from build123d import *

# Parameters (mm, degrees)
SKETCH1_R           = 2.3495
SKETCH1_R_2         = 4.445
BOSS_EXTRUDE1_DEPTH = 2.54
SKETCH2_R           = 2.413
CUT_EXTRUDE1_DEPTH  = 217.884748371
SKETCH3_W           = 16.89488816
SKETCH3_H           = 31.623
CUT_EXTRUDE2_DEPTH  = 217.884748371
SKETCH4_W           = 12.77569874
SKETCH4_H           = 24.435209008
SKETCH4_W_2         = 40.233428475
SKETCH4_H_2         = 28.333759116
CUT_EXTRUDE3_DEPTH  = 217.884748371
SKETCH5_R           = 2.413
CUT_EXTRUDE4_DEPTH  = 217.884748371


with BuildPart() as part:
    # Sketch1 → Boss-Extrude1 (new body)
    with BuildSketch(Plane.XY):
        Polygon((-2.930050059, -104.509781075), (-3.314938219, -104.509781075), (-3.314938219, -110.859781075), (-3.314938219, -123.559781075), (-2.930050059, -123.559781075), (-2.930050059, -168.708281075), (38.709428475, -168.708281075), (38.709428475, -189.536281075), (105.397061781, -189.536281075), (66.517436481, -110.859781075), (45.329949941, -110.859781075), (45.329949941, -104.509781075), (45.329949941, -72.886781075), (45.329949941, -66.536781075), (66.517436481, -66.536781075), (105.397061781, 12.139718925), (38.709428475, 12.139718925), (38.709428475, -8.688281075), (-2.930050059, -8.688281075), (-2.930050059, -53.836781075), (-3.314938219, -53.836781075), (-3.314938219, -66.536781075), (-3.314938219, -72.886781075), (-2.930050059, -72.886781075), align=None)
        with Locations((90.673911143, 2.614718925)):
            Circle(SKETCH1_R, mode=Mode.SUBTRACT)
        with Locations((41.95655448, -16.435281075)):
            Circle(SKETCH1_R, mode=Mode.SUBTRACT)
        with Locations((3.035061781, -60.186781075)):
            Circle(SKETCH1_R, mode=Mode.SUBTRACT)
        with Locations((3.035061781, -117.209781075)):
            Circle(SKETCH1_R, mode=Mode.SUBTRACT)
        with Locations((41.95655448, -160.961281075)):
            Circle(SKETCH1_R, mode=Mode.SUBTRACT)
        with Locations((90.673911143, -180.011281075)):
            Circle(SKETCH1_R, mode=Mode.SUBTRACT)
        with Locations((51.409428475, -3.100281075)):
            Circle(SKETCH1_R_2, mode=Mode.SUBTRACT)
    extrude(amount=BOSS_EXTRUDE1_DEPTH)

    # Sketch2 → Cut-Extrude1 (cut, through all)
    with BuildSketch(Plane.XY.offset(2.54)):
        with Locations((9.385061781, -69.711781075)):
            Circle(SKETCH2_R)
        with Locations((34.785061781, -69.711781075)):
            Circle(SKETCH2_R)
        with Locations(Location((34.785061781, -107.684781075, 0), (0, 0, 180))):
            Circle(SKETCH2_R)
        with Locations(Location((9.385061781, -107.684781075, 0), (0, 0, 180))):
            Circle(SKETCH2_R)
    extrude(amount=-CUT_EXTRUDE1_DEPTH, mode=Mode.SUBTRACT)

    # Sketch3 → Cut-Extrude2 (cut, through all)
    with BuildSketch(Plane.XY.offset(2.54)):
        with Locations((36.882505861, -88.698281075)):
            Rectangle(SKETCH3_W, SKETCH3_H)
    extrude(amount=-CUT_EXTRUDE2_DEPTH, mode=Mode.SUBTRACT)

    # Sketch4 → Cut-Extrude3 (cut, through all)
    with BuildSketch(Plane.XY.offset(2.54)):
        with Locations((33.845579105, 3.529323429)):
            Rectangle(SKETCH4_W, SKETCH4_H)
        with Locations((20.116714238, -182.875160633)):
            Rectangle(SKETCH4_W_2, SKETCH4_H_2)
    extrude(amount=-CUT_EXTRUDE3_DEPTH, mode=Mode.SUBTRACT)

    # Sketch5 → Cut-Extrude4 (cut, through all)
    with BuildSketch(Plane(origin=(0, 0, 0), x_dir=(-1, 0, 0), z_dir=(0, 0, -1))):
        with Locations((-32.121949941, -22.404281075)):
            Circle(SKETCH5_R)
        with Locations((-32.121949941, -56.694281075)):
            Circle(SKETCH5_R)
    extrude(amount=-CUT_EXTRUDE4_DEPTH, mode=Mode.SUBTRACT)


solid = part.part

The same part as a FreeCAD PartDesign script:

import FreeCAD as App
import Part
import Sketcher

V = App.Vector
Q = App.Units.Quantity


def add_polygon(sketch, points):
    """Adds a closed chain of lines whose ends are joined by coincident constraints."""
    first, n = sketch.GeometryCount, len(points)
    for a, b in zip(points, points[1:] + points[:1]):
        sketch.addGeometry(Part.LineSegment(App.Vector(*a, 0), App.Vector(*b, 0)), False)
    for i in range(n):
        sketch.addConstraint(Sketcher.Constraint("Coincident", first + i, 2, first + (i + 1) % n, 1))

doc = App.newDocument("Part")
params = doc.addObject("Spreadsheet::Sheet", "Params")
for row, (alias, value) in enumerate([
    ("sketch1_diameter", "0.35 in"),
    ("sketch1_diameter2", "0.185 in"),
    ("sketch1_height", "0.75 in"),
    ("sketch1_height2", "0.82 in"),
    ("sketch1_height3", "1.745 in"),
    ("pad1_length", "0.1 in"),
    ("sketch2_diameter", "0.19 in"),
    ("sketch3_height", "1.245 in"),
    ("sketch5_diameter", "0.19 in"),
], start=1):
    params.set(f"A{row}", alias)
    params.set(f"B{row}", "=" + value)
    params.setAlias(f"B{row}", alias)

body = doc.addObject("PartDesign::Body", "Body")

# Sketch on XY plane
sketch1 = body.newObject("Sketcher::SketchObject", "Sketch")
sketch1.AttachmentSupport = (doc.getObject("XY_Plane"), [""])
sketch1.MapMode = "FlatFace"
add_polygon(sketch1, [(-2.93005, -104.509781), (-3.314938, -104.509781), (-3.314938, -123.559781), (-2.93005, -123.559781), (-2.93005, -168.708281), (38.709428, -168.708281), (38.709428, -189.536281), (105.397062, -189.536281), (66.517436, -110.859781), (45.32995, -110.859781), (45.32995, -66.536781), (66.517436, -66.536781), (105.397062, 12.139719), (38.709428, 12.139719), (38.709428, -8.688281), (-2.93005, -8.688281), (-2.93005, -53.836781), (-3.314938, -53.836781), (-3.314938, -72.886781), (-2.93005, -72.886781)])  # lines 0-19
sketch1.addGeometry(Part.Circle(V(41.956554, -160.961281, 0), V(0, 0, 1), 2.3495), False)  # 20
sketch1.addGeometry(Part.Circle(V(3.035062, -117.209781, 0), V(0, 0, 1), 2.3495), False)  # 21
sketch1.addGeometry(Part.Circle(V(90.673911, -180.011281, 0), V(0, 0, 1), 2.3495), False)  # 22
sketch1.addGeometry(Part.Circle(V(3.035062, -60.186781, 0), V(0, 0, 1), 2.3495), False)  # 23
sketch1.addGeometry(Part.Circle(V(41.956554, -16.435281, 0), V(0, 0, 1), 2.3495), False)  # 24
sketch1.addGeometry(Part.Circle(V(51.409428, -3.100281, 0), V(0, 0, 1), 4.445), False)  # 25
sketch1.addGeometry(Part.Circle(V(90.673911, 2.614719, 0), V(0, 0, 1), 2.3495), False)  # 26
sketch1.addConstraint([
    Sketcher.Constraint("Horizontal", 0),
    Sketcher.Constraint("Vertical", 1),
    Sketcher.Constraint("Horizontal", 2),
    Sketcher.Constraint("Vertical", 3),
    Sketcher.Constraint("Horizontal", 4),
    Sketcher.Constraint("Vertical", 5),
    Sketcher.Constraint("Horizontal", 6),
    Sketcher.Constraint("Horizontal", 8),
    Sketcher.Constraint("Vertical", 9),
    Sketcher.Constraint("Horizontal", 10),
    Sketcher.Constraint("Horizontal", 12),
    Sketcher.Constraint("Vertical", 13),
    Sketcher.Constraint("Horizontal", 14),
    Sketcher.Constraint("Vertical", 15),
    Sketcher.Constraint("Horizontal", 16),
    Sketcher.Constraint("Vertical", 17),
    Sketcher.Constraint("Horizontal", 18),
    Sketcher.Constraint("Vertical", 19),
    Sketcher.Constraint("Equal", 20, 21),
    Sketcher.Constraint("Equal", 21, 22),
    Sketcher.Constraint("Equal", 22, 23),
    Sketcher.Constraint("Equal", 23, 24),
    Sketcher.Constraint("Equal", 24, 26),
    Sketcher.Constraint("Vertical", 21, 3, 23, 3),
    Sketcher.Constraint("Vertical", 20, 3, 24, 3),
    Sketcher.Constraint("Vertical", 22, 3, 26, 3),
    Sketcher.Constraint("Vertical", 7, 2, 10, 2),
    Sketcher.Constraint("Vertical", 6, 2, 11, 2),
    Sketcher.Constraint("Vertical", 5, 2, 12, 2),
    Sketcher.Constraint("Vertical", 3, 2, 14, 2),
    Sketcher.Constraint("Vertical", 1, 2, 16, 2),
    Sketcher.Constraint("Vertical", 15, 2, 18, 2),
    Sketcher.Constraint("Equal", 5, 13),
    Sketcher.Constraint("Equal", 3, 15),
    Sketcher.Constraint("Equal", 1, 17),
    Sketcher.Constraint("Equal", 7, 11),
    Sketcher.Constraint("Diameter", 25, Q("0.35 in")),
    Sketcher.Constraint("Diameter", 20, Q("0.185 in")),
    Sketcher.Constraint("DistanceY", 1, 2, 1, 1, Q("0.75 in")),
    Sketcher.Constraint("DistanceY", 5, 2, 5, 1, Q("0.82 in")),
    Sketcher.Constraint("DistanceY", 21, 3, 0, 2, Q("0.5 in")),
    Sketcher.Constraint("DistanceY", 2, 2, 7, 2, Q("0.5 in")),
    Sketcher.Constraint("DistanceX", 2, 2, 8, 2, Q("1.9 in")),
    Sketcher.Constraint("DistanceY", 25, 3, 11, 2, Q("0.6 in")),
    Sketcher.Constraint("DistanceX", 12, 2, 25, 3, Q("0.5 in")),
    Sketcher.Constraint("DistanceY", 17, 2, 23, 3, Q("0.5 in")),
    Sketcher.Constraint("DistanceY", 9, 1, 9, 2, Q("1.745 in")),
    Sketcher.Constraint("DistanceY", 22, 3, 20, 3, Q("0.75 in")),
    Sketcher.Constraint("DistanceY", 20, 3, 24, 3, Q("5.69 in")),
    Sketcher.Constraint("DistanceY", 24, 3, 26, 3, Q("0.75 in")),
    Sketcher.Constraint("DistanceX", 0, 2, 21, 3, Q("0.25 in")),
    Sketcher.Constraint("DistanceY", 3, 2, 3, 1, Q("1.7775 in")),
    Sketcher.Constraint("DistanceY", 24, 3, 25, 3, Q("0.525 in")),
    Sketcher.Constraint("DistanceX", 0, 2, 0, 1, Q("0.384888 mm")),
    Sketcher.Constraint("DistanceX", 4, 1, 4, 2, Q("41.639479 mm")),
    Sketcher.Constraint("DistanceX", 6, 1, 6, 2, Q("66.687633 mm")),
    Sketcher.Constraint("DistanceX", 8, 2, 8, 1, Q("21.187487 mm")),
    Sketcher.Constraint("DistanceY", 20, 3, -1, 1, Q("160.961281 mm")),
    Sketcher.Constraint("DistanceX", -1, 1, 21, 3, Q("3.035062 mm")),
    Sketcher.Constraint("DistanceX", -1, 1, 22, 3, Q("90.673911 mm")),
    Sketcher.Constraint("DistanceX", -1, 1, 20, 3, Q("41.956554 mm")),
])
sketch1.setExpression("Constraints[56]", "Params.sketch1_diameter")
sketch1.setExpression("Constraints[57]", "Params.sketch1_diameter2")
sketch1.setExpression("Constraints[58]", "Params.sketch1_height")
sketch1.setExpression("Constraints[59]", "Params.sketch1_height2")
sketch1.setExpression("Constraints[66]", "Params.sketch1_height3")
pad1 = body.newObject("PartDesign::Pad", "Pad")
pad1.Profile = sketch1
pad1.setExpression("Length", "Params.pad1_length")

# Sketch on XY plane
sketch2 = body.newObject("Sketcher::SketchObject", "Sketch001")
sketch2.AttachmentSupport = (doc.getObject("XY_Plane"), [""])
sketch2.MapMode = "FlatFace"
sketch2.AttachmentOffset = App.Placement(V(0, 0, 0.1 * 25.4), App.Rotation())
sketch2.addGeometry([
    Part.Circle(V(9.385062, -69.711781, 0), V(0, 0, 1), 2.413),
    Part.Circle(V(34.785062, -69.711781, 0), V(0, 0, 1), 2.413),
    Part.Circle(V(34.785062, -107.684781, 0), V(0, 0, 1), 2.413),
    Part.Circle(V(9.385062, -107.684781, 0), V(0, 0, 1), 2.413),
], False)
sketch2.addConstraint([
    Sketcher.Constraint("Equal", 0, 1),
    Sketcher.Constraint("Equal", 1, 2),
    Sketcher.Constraint("Equal", 2, 3),
    Sketcher.Constraint("Horizontal", 0, 3, 1, 3),
    Sketcher.Constraint("Horizontal", 2, 3, 3, 3),
    Sketcher.Constraint("Vertical", 1, 3, 2, 3),
    Sketcher.Constraint("Vertical", 0, 3, 3, 3),
    Sketcher.Constraint("Diameter", 0, Q("0.19 in")),
    Sketcher.Constraint("DistanceX", 0, 3, 1, 3, Q("1 in")),
    Sketcher.Constraint("DistanceY", 2, 3, 1, 3, Q("1.495 in")),
    Sketcher.Constraint("DistanceX", -1, 1, 0, 3, Q("9.385062 mm")),
    Sketcher.Constraint("DistanceY", 0, 3, -1, 1, Q("69.711781 mm")),
])
sketch2.setExpression("Constraints[7]", "Params.sketch2_diameter")
pocket1 = body.newObject("PartDesign::Pocket", "Pocket")
pocket1.Profile = sketch2
pocket1.Type = "ThroughAll"

# Sketch on XY plane
sketch3 = body.newObject("Sketcher::SketchObject", "Sketch002")
sketch3.AttachmentSupport = (doc.getObject("XY_Plane"), [""])
sketch3.MapMode = "FlatFace"
sketch3.AttachmentOffset = App.Placement(V(0, 0, 0.1 * 25.4), App.Rotation())
add_polygon(sketch3, [(28.435062, -72.886781), (28.435062, -104.509781), (45.32995, -104.509781), (45.32995, -72.886781)])  # lines 0-3
sketch3.addConstraint([
    Sketcher.Constraint("Vertical", 0),
    Sketcher.Constraint("Horizontal", 1),
    Sketcher.Constraint("Vertical", 2),
    Sketcher.Constraint("Horizontal", 3),
    Sketcher.Constraint("DistanceY", 0, 2, 0, 1, Q("1.245 in")),
    Sketcher.Constraint("DistanceX", 1, 1, 1, 2, Q("16.894888 mm")),
    Sketcher.Constraint("DistanceX", -1, 1, 0, 2, Q("28.435062 mm")),
    Sketcher.Constraint("DistanceY", 0, 2, -1, 1, Q("104.509781 mm")),
])
sketch3.setExpression("Constraints[8]", "Params.sketch3_height")
pocket2 = body.newObject("PartDesign::Pocket", "Pocket001")
pocket2.Profile = sketch3
pocket2.Type = "ThroughAll"

# Sketch on XY plane
sketch4 = body.newObject("Sketcher::SketchObject", "Sketch003")
sketch4.AttachmentSupport = (doc.getObject("XY_Plane"), [""])
sketch4.MapMode = "FlatFace"
sketch4.AttachmentOffset = App.Placement(V(0, 0, 0.1 * 25.4), App.Rotation())
add_polygon(sketch4, [(27.45773, 15.746928), (27.45773, -8.688281), (40.233428, -8.688281), (40.233428, 15.746928)])  # lines 0-3
add_polygon(sketch4, [(0, -168.708281), (0, -197.04204), (40.233428, -197.04204), (40.233428, -168.708281)])  # lines 4-7
sketch4.addConstraint([
    Sketcher.Constraint("Vertical", 0),
    Sketcher.Constraint("Horizontal", 1),
    Sketcher.Constraint("Vertical", 2),
    Sketcher.Constraint("Horizontal", 3),
    Sketcher.Constraint("Vertical", 4),
    Sketcher.Constraint("Horizontal", 5),
    Sketcher.Constraint("Vertical", 6),
    Sketcher.Constraint("Horizontal", 7),
    Sketcher.Constraint("PointOnObject", 4, 2, -2),
    Sketcher.Constraint("Vertical", 2, 2, 5, 2),
    Sketcher.Constraint("DistanceY", 6, 2, 1, 2, Q("6.3 in")),
    Sketcher.Constraint("DistanceX", 1, 1, 1, 2, Q("12.775699 mm")),
    Sketcher.Constraint("DistanceX", 5, 1, 5, 2, Q("40.233428 mm")),
    Sketcher.Constraint("DistanceY", 0, 2, 0, 1, Q("24.435209 mm")),
    Sketcher.Constraint("DistanceY", 4, 2, 4, 1, Q("28.333759 mm")),
    Sketcher.Constraint("DistanceY", 0, 2, -1, 1, Q("8.688281 mm")),
])
pocket3 = body.newObject("PartDesign::Pocket", "Pocket002")
pocket3.Profile = sketch4
pocket3.Type = "ThroughAll"

# Sketch on XY plane
sketch5 = body.newObject("Sketcher::SketchObject", "Sketch004")
sketch5.AttachmentSupport = (doc.getObject("XY_Plane"), [""])
sketch5.MapMode = "FlatFace"
sketch5.addGeometry([
    Part.Circle(V(32.12195, -22.404281, 0), V(0, 0, 1), 2.413),
    Part.Circle(V(32.12195, -56.694281, 0), V(0, 0, 1), 2.413),
], False)
sketch5.addConstraint([
    Sketcher.Constraint("Equal", 0, 1),
    Sketcher.Constraint("Vertical", 0, 3, 1, 3),
    Sketcher.Constraint("Diameter", 0, Q("0.19 in")),
    Sketcher.Constraint("DistanceY", 1, 3, 0, 3, Q("1.35 in")),
    Sketcher.Constraint("DistanceX", -1, 1, 0, 3, Q("32.12195 mm")),
    Sketcher.Constraint("DistanceY", 0, 3, -1, 1, Q("22.404281 mm")),
])
sketch5.setExpression("Constraints[2]", "Params.sketch5_diameter")
pocket4 = body.newObject("PartDesign::Pocket", "Pocket003")
pocket4.Profile = sketch5
pocket4.Type = "ThroughAll"
pocket4.Reversed = True

doc.recompute()
